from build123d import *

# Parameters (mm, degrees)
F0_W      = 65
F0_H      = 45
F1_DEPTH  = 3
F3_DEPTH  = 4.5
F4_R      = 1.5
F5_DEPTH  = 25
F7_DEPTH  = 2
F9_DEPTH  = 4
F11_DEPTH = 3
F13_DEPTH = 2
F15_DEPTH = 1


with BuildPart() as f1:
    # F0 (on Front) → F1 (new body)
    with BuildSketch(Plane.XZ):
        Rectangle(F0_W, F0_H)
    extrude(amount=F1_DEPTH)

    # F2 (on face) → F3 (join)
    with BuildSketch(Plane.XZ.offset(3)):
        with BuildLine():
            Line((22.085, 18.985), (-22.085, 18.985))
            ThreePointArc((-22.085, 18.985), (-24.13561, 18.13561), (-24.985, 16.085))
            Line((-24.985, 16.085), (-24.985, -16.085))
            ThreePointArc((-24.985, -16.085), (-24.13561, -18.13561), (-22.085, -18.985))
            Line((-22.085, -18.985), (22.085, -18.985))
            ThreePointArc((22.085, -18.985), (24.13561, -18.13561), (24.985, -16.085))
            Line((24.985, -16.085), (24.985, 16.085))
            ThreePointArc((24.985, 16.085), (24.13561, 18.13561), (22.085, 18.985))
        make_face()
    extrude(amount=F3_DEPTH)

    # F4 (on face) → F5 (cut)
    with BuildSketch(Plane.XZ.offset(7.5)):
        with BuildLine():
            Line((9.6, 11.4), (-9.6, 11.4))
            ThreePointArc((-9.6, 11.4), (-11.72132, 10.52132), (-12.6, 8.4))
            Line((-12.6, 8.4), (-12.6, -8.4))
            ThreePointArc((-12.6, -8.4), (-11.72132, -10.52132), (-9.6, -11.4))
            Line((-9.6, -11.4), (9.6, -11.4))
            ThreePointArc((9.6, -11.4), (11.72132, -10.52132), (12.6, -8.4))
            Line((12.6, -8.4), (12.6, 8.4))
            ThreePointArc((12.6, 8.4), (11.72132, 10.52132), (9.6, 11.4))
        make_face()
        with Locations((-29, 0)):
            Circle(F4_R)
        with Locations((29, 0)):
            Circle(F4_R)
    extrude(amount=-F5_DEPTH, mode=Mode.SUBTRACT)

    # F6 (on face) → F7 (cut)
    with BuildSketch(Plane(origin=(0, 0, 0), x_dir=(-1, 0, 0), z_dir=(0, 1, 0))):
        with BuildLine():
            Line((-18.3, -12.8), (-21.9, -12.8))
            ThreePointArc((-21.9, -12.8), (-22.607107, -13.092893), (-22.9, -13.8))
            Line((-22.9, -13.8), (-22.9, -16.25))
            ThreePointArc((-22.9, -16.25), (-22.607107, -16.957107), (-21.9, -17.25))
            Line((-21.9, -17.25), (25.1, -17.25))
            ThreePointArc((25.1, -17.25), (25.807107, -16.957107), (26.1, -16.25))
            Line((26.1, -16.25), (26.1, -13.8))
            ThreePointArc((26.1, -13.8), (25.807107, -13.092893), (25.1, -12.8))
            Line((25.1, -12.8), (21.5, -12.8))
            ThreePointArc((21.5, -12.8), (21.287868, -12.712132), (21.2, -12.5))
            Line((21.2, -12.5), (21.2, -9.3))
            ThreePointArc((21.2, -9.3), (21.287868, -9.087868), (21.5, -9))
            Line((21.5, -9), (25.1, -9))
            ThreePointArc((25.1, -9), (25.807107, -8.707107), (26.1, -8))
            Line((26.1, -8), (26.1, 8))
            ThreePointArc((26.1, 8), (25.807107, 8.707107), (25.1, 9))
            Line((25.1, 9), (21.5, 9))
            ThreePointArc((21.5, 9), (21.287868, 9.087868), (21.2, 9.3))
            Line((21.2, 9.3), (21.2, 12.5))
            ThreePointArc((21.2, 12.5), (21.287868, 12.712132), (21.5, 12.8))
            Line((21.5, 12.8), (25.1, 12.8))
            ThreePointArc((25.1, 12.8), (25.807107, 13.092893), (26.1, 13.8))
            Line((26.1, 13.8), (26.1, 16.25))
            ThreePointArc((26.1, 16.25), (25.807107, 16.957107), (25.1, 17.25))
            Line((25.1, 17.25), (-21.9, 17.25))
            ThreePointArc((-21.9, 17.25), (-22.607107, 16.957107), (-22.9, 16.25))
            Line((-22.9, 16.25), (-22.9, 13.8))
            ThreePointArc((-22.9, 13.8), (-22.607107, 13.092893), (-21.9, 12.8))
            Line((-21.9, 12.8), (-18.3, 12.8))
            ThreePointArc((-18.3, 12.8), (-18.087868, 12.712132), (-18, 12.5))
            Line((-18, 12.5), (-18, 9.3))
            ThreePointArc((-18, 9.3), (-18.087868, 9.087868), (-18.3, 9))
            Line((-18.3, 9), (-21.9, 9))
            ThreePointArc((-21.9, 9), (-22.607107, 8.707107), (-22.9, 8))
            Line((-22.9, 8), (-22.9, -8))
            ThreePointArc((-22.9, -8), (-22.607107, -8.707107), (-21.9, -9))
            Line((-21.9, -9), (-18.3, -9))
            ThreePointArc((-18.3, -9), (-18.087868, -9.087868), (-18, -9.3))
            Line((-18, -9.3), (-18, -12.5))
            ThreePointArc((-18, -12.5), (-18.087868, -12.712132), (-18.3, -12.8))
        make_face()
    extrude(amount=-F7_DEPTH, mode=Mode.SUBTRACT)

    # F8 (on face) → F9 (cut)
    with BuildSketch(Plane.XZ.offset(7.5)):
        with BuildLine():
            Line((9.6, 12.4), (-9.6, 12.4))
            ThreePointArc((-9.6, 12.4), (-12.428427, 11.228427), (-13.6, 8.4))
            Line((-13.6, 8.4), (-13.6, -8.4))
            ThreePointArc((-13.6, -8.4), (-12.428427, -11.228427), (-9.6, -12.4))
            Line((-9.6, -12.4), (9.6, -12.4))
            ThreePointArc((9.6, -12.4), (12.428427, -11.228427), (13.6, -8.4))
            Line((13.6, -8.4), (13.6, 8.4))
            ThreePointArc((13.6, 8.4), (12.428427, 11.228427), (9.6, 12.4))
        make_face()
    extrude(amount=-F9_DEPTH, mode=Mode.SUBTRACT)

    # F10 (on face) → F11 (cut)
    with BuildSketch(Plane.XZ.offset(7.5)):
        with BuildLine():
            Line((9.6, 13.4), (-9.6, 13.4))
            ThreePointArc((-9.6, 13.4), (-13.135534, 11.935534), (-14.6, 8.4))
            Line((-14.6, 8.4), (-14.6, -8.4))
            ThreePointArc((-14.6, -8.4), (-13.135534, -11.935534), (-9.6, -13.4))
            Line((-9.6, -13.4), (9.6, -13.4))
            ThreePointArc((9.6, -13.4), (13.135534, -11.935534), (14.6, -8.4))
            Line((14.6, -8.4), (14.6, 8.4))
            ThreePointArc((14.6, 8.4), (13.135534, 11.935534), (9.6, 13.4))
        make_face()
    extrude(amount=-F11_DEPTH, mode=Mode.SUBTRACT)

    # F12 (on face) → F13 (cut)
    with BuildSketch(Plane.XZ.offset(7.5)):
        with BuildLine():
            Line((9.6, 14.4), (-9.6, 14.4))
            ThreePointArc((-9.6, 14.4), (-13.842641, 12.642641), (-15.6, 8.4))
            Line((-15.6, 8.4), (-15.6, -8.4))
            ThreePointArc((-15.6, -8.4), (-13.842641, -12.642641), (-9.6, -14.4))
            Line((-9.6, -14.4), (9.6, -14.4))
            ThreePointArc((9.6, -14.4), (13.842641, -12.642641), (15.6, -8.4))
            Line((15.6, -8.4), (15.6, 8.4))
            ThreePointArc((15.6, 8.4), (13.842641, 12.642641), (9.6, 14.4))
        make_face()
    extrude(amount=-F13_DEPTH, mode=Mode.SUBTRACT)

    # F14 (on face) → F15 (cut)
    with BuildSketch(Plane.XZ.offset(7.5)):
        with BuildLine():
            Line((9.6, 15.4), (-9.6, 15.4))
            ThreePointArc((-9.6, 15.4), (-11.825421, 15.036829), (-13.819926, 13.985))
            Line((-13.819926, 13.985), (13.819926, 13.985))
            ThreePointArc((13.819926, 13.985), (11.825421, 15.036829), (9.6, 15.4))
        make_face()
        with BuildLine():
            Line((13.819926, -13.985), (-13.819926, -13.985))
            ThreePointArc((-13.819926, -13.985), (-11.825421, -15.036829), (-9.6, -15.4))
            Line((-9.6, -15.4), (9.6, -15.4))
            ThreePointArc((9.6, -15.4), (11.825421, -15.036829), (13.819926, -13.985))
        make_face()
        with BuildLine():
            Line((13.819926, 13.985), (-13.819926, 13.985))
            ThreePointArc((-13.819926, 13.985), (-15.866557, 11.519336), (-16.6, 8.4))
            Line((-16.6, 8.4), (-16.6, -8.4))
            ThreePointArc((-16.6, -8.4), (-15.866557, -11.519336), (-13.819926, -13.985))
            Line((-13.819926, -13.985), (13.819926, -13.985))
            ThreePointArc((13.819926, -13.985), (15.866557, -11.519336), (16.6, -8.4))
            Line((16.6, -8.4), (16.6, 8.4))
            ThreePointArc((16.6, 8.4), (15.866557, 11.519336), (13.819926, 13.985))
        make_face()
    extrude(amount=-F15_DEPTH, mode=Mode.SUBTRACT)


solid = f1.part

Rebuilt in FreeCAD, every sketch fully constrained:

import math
import FreeCAD as App
import Part
import Sketcher
from FreeCAD import Vector
Q = App.Units.Quantity


def add_polygon(sketch, points):
    """Adds a closed chain of lines whose ends are joined by coincident constraints."""
    first, n = sketch.GeometryCount, len(points)
    for a, b in zip(points, points[1:] + points[:1]):
        sketch.addGeometry(Part.LineSegment(App.Vector(*a, 0), App.Vector(*b, 0)), False)
    for i in range(n):
        sketch.addConstraint(Sketcher.Constraint("Coincident", first + i, 2, first + (i + 1) % n, 1))

doc = App.newDocument("Part")
body = doc.addObject("PartDesign::Body", "Body")

# Sketch on XZ plane
sketch1 = body.newObject("Sketcher::SketchObject", "Sketch")
sketch1.AttachmentSupport = (doc.getObject("XZ_Plane"), [""])
sketch1.MapMode = "FlatFace"
add_polygon(sketch1, [(-32, 22), (-32, -22), (32, -22), (32, 22)])  # lines 0-3
sketch1.addConstraint([
    Sketcher.Constraint("Vertical", 0),
    Sketcher.Constraint("Horizontal", 1),
    Sketcher.Constraint("Vertical", 2),
    Sketcher.Constraint("Horizontal", 3),
    Sketcher.Constraint("Symmetric", 0, 2, 2, 2, -1, 1),
    Sketcher.Constraint("DistanceX", 1, 1, 1, 2, Q("65 mm")),
    Sketcher.Constraint("DistanceY", 0, 2, 0, 1, Q("45 mm")),
])
pad1 = body.newObject("PartDesign::Pad", "Pad")
pad1.Profile = sketch1
pad1.Length = 3

# Sketch on XZ plane
sketch2 = body.newObject("Sketcher::SketchObject", "Sketch001")
sketch2.AttachmentSupport = (doc.getObject("XZ_Plane"), [""])
sketch2.MapMode = "FlatFace"
sketch2.AttachmentOffset = App.Placement(Vector(0, 0, 3), App.Rotation())
sketch2.addGeometry([
    Part.LineSegment(Vector(22.1, 19, 0), Vector(-22.1, 19, 0)),  # 0
    Part.ArcOfCircle(Part.Circle(Vector(-22.1, 16.1, 0), Vector(0, 0, 1), 2.9), math.radians(90), math.radians(180)),  # 1
    Part.LineSegment(Vector(-25, 16.1, 0), Vector(-25, -16.1, 0)),  # 2
    Part.ArcOfCircle(Part.Circle(Vector(-22.1, -16.1, 0), Vector(0, 0, 1), 2.9), math.radians(180), math.radians(270)),  # 3
    Part.LineSegment(Vector(-22.1, -19, 0), Vector(22.1, -19, 0)),  # 4
    Part.ArcOfCircle(Part.Circle(Vector(22.1, -16.1, 0), Vector(0, 0, 1), 2.9), math.radians(-90), math.radians(0)),  # 5
    Part.LineSegment(Vector(25, -16.1, 0), Vector(25, 16.1, 0)),  # 6
    Part.ArcOfCircle(Part.Circle(Vector(22.1, 16.1, 0), Vector(0, 0, 1), 2.9), math.radians(0), math.radians(90)),  # 7
], False)
sketch2.addConstraint([
    Sketcher.Constraint("Tangent", 0, 2, 1, 1),
    Sketcher.Constraint("Tangent", 1, 2, 2, 1),
    Sketcher.Constraint("Tangent", 2, 2, 3, 1),
    Sketcher.Constraint("Tangent", 3, 2, 4, 1),
    Sketcher.Constraint("Tangent", 4, 2, 5, 1),
    Sketcher.Constraint("Tangent", 5, 2, 6, 1),
    Sketcher.Constraint("Tangent", 6, 2, 7, 1),
    Sketcher.Constraint("Tangent", 7, 2, 0, 1),
    Sketcher.Constraint("Horizontal", 0),
    Sketcher.Constraint("Vertical", 2),
    Sketcher.Constraint("Horizontal", 4),
    Sketcher.Constraint("Vertical", 6),
    Sketcher.Constraint("Equal", 1, 3),
    Sketcher.Constraint("Equal", 3, 5),
    Sketcher.Constraint("Equal", 5, 7),
    Sketcher.Constraint("Symmetric", 1, 3, 5, 3, -1, 1),
    Sketcher.Constraint("Radius", 1, Q("2.899999 mm")),
    Sketcher.Constraint("DistanceX", 0, 2, 0, 1, Q("44.17 mm")),
    Sketcher.Constraint("DistanceY", 2, 2, 2, 1, Q("32.17 mm")),
])
pad2 = body.newObject("PartDesign::Pad", "Pad001")
pad2.Profile = sketch2
pad2.Length = 4.5

# Sketch on XZ plane
sketch3 = body.newObject("Sketcher::SketchObject", "Sketch002")
sketch3.AttachmentSupport = (doc.getObject("XZ_Plane"), [""])
sketch3.MapMode = "FlatFace"
sketch3.AttachmentOffset = App.Placement(Vector(0, 0, 7.5), App.Rotation())
sketch3.addGeometry([
    Part.LineSegment(Vector(9.6, 11.4, 0), Vector(-9.6, 11.4, 0)),  # 0
    Part.ArcOfCircle(Part.Circle(Vector(-9.6, 8.4, 0), Vector(0, 0, 1), 3), math.radians(90), math.radians(180)),  # 1
    Part.LineSegment(Vector(-12.6, 8.4, 0), Vector(-12.6, -8.4, 0)),  # 2
    Part.ArcOfCircle(Part.Circle(Vector(-9.6, -8.4, 0), Vector(0, 0, 1), 3), math.radians(-180), math.radians(-90)),  # 3
    Part.LineSegment(Vector(-9.6, -11.4, 0), Vector(9.6, -11.4, 0)),  # 4
    Part.ArcOfCircle(Part.Circle(Vector(9.6, -8.4, 0), Vector(0, 0, 1), 3), math.radians(-90), math.radians(0)),  # 5
    Part.LineSegment(Vector(12.6, -8.4, 0), Vector(12.6, 8.4, 0)),  # 6
    Part.ArcOfCircle(Part.Circle(Vector(9.6, 8.4, 0), Vector(0, 0, 1), 3), math.radians(0), math.radians(90)),  # 7
    Part.Circle(Vector(-29, 0, 0), Vector(0, 0, 1), 1.5),  # 8
    Part.Circle(Vector(29, 0, 0), Vector(0, 0, 1), 1.5),  # 9
], False)
sketch3.addConstraint([
    Sketcher.Constraint("Tangent", 0, 2, 1, 1),
    Sketcher.Constraint("Tangent", 1, 2, 2, 1),
    Sketcher.Constraint("Tangent", 2, 2, 3, 1),
    Sketcher.Constraint("Tangent", 3, 2, 4, 1),
    Sketcher.Constraint("Tangent", 4, 2, 5, 1),
    Sketcher.Constraint("Tangent", 5, 2, 6, 1),
    Sketcher.Constraint("Tangent", 6, 2, 7, 1),
    Sketcher.Constraint("Tangent", 7, 2, 0, 1),
    Sketcher.Constraint("Horizontal", 0),
    Sketcher.Constraint("Vertical", 2),
    Sketcher.Constraint("Horizontal", 4),
    Sketcher.Constraint("Vertical", 6),
    Sketcher.Constraint("Equal", 1, 3),
    Sketcher.Constraint("Equal", 3, 5),
    Sketcher.Constraint("Equal", 5, 7),
    Sketcher.Constraint("Equal", 8, 9),
    Sketcher.Constraint("Symmetric", 1, 3, 5, 3, -1, 1),
    Sketcher.Constraint("Symmetric", 8, 3, 9, 3, -1, 1),
    Sketcher.Constraint("PointOnObject", 8, 3, -1),
    Sketcher.Constraint("Diameter", 8, Q("3 mm")),
    Sketcher.Constraint("Radius", 1, Q("3.000001 mm")),
    Sketcher.Constraint("DistanceX", 0, 2, 0, 1, Q("19.2 mm")),
    Sketcher.Constraint("DistanceY", 2, 2, 2, 1, Q("16.8 mm")),
    Sketcher.Constraint("DistanceX", 8, 3, -1, 1, Q("29 mm")),
])
pocket1 = body.newObject("PartDesign::Pocket", "Pocket")
pocket1.Profile = sketch3
pocket1.Length = 25

# Sketch on XZ plane
sketch4 = body.newObject("Sketcher::SketchObject", "Sketch003")
sketch4.AttachmentSupport = (doc.getObject("XZ_Plane"), [""])
sketch4.MapMode = "FlatFace"
sketch4.addGeometry([
    Part.LineSegment(Vector(18.3, -12.8, 0), Vector(21.9, -12.8, 0)),  # 0
    Part.ArcOfCircle(Part.Circle(Vector(21.9, -13.8, 0), Vector(0, 0, 1), 1), math.radians(0), math.radians(90)),  # 1
    Part.LineSegment(Vector(22.9, -13.8, 0), Vector(22.9, -16.25, 0)),  # 2
    Part.ArcOfCircle(Part.Circle(Vector(21.9, -16.25, 0), Vector(0, 0, 1), 1), math.radians(-90), math.radians(0)),  # 3
    Part.LineSegment(Vector(21.9, -17.25, 0), Vector(-25.1, -17.25, 0)),  # 4
    Part.ArcOfCircle(Part.Circle(Vector(-25.1, -16.25, 0), Vector(0, 0, 1), 1), math.radians(180), math.radians(270)),  # 5
    Part.LineSegment(Vector(-26.1, -16.25, 0), Vector(-26.1, -13.8, 0)),  # 6
    Part.ArcOfCircle(Part.Circle(Vector(-25.1, -13.8, 0), Vector(0, 0, 1), 1), math.radians(90), math.radians(180)),  # 7
    Part.LineSegment(Vector(-25.1, -12.8, 0), Vector(-21.5, -12.8, 0)),  # 8
    Part.ArcOfCircle(Part.Circle(Vector(-21.5, -12.5, 0), Vector(0, 0, 1), 0.3), math.radians(-90), math.radians(0)),  # 9
    Part.LineSegment(Vector(-21.2, -12.5, 0), Vector(-21.2, -9.3, 0)),  # 10
    Part.ArcOfCircle(Part.Circle(Vector(-21.5, -9.3, 0), Vector(0, 0, 1), 0.3), math.radians(0), math.radians(90)),  # 11
    Part.LineSegment(Vector(-21.5, -9, 0), Vector(-25.1, -9, 0)),  # 12
    Part.ArcOfCircle(Part.Circle(Vector(-25.1, -8, 0), Vector(0, 0, 1), 1), math.radians(180), math.radians(270)),  # 13
    Part.LineSegment(Vector(-26.1, -8, 0), Vector(-26.1, 8, 0)),  # 14
    Part.ArcOfCircle(Part.Circle(Vector(-25.1, 8, 0), Vector(0, 0, 1), 1), math.radians(90), math.radians(180)),  # 15
    Part.LineSegment(Vector(-25.1, 9, 0), Vector(-21.5, 9, 0)),  # 16
    Part.ArcOfCircle(Part.Circle(Vector(-21.5, 9.3, 0), Vector(0, 0, 1), 0.3), math.radians(-90), math.radians(0)),  # 17
    Part.LineSegment(Vector(-21.2, 9.3, 0), Vector(-21.2, 12.5, 0)),  # 18
    Part.ArcOfCircle(Part.Circle(Vector(-21.5, 12.5, 0), Vector(0, 0, 1), 0.3), math.radians(0), math.radians(90)),  # 19
    Part.LineSegment(Vector(-21.5, 12.8, 0), Vector(-25.1, 12.8, 0)),  # 20
    Part.ArcOfCircle(Part.Circle(Vector(-25.1, 13.8, 0), Vector(0, 0, 1), 1), math.radians(180), math.radians(270)),  # 21
    Part.LineSegment(Vector(-26.1, 13.8, 0), Vector(-26.1, 16.25, 0)),  # 22
    Part.ArcOfCircle(Part.Circle(Vector(-25.1, 16.25, 0), Vector(0, 0, 1), 1), math.radians(90), math.radians(180)),  # 23
    Part.LineSegment(Vector(-25.1, 17.25, 0), Vector(21.9, 17.25, 0)),  # 24
    Part.ArcOfCircle(Part.Circle(Vector(21.9, 16.25, 0), Vector(0, 0, 1), 1), math.radians(0), math.radians(90)),  # 25
    Part.LineSegment(Vector(22.9, 16.25, 0), Vector(22.9, 13.8, 0)),  # 26
    Part.ArcOfCircle(Part.Circle(Vector(21.9, 13.8, 0), Vector(0, 0, 1), 1), math.radians(-90), math.radians(0)),  # 27
    Part.LineSegment(Vector(21.9, 12.8, 0), Vector(18.3, 12.8, 0)),  # 28
    Part.ArcOfCircle(Part.Circle(Vector(18.3, 12.5, 0), Vector(0, 0, 1), 0.3), math.radians(90), math.radians(180)),  # 29
    Part.LineSegment(Vector(18, 12.5, 0), Vector(18, 9.3, 0)),  # 30
    Part.ArcOfCircle(Part.Circle(Vector(18.3, 9.3, 0), Vector(0, 0, 1), 0.3), math.radians(-180), math.radians(-90)),  # 31
    Part.LineSegment(Vector(18.3, 9, 0), Vector(21.9, 9, 0)),  # 32
    Part.ArcOfCircle(Part.Circle(Vector(21.9, 8, 0), Vector(0, 0, 1), 1), math.radians(0), math.radians(90)),  # 33
    Part.LineSegment(Vector(22.9, 8, 0), Vector(22.9, -8, 0)),  # 34
    Part.ArcOfCircle(Part.Circle(Vector(21.9, -8, 0), Vector(0, 0, 1), 1), math.radians(-90), math.radians(0)),  # 35
    Part.LineSegment(Vector(21.9, -9, 0), Vector(18.3, -9, 0)),  # 36
    Part.ArcOfCircle(Part.Circle(Vector(18.3, -9.3, 0), Vector(0, 0, 1), 0.3), math.radians(90), math.radians(180)),  # 37
    Part.LineSegment(Vector(18, -9.3, 0), Vector(18, -12.5, 0)),  # 38
    Part.ArcOfCircle(Part.Circle(Vector(18.3, -12.5, 0), Vector(0, 0, 1), 0.3), math.radians(-180), math.radians(-90)),  # 39
], False)
sketch4.addConstraint([
    Sketcher.Constraint("Tangent", 0, 2, 1, 2),
    Sketcher.Constraint("Tangent", 1, 1, 2, 1),
    Sketcher.Constraint("Tangent", 2, 2, 3, 2),
    Sketcher.Constraint("Tangent", 3, 1, 4, 1),
    Sketcher.Constraint("Tangent", 4, 2, 5, 2),
    Sketcher.Constraint("Tangent", 5, 1, 6, 1),
    Sketcher.Constraint("Tangent", 6, 2, 7, 2),
    Sketcher.Constraint("Tangent", 7, 1, 8, 1),
    Sketcher.Constraint("Tangent", 8, 2, 9, 1),
    Sketcher.Constraint("Tangent", 9, 2, 10, 1),
    Sketcher.Constraint("Tangent", 10, 2, 11, 1),
    Sketcher.Constraint("Tangent", 11, 2, 12, 1),
    Sketcher.Constraint("Tangent", 12, 2, 13, 2),
    Sketcher.Constraint("Tangent", 13, 1, 14, 1),
    Sketcher.Constraint("Tangent", 14, 2, 15, 2),
    Sketcher.Constraint("Tangent", 15, 1, 16, 1),
    Sketcher.Constraint("Tangent", 16, 2, 17, 1),
    Sketcher.Constraint("Tangent", 17, 2, 18, 1),
    Sketcher.Constraint("Tangent", 18, 2, 19, 1),
    Sketcher.Constraint("Tangent", 19, 2, 20, 1),
    Sketcher.Constraint("Tangent", 20, 2, 21, 2),
    Sketcher.Constraint("Tangent", 21, 1, 22, 1),
    Sketcher.Constraint("Tangent", 22, 2, 23, 2),
    Sketcher.Constraint("Tangent", 23, 1, 24, 1),
    Sketcher.Constraint("Tangent", 24, 2, 25, 2),
    Sketcher.Constraint("Tangent", 25, 1, 26, 1),
    Sketcher.Constraint("Tangent", 26, 2, 27, 2),
    Sketcher.Constraint("Tangent", 27, 1, 28, 1),
    Sketcher.Constraint("Tangent", 28, 2, 29, 1),
    Sketcher.Constraint("Tangent", 29, 2, 30, 1),
    Sketcher.Constraint("Tangent", 30, 2, 31, 1),
    Sketcher.Constraint("Tangent", 31, 2, 32, 1),
    Sketcher.Constraint("Tangent", 32, 2, 33, 2),
    Sketcher.Constraint("Tangent", 33, 1, 34, 1),
    Sketcher.Constraint("Tangent", 34, 2, 35, 2),
    Sketcher.Constraint("Tangent", 35, 1, 36, 1),
    Sketcher.Constraint("Tangent", 36, 2, 37, 1),
    Sketcher.Constraint("Tangent", 37, 2, 38, 1),
    Sketcher.Constraint("Tangent", 38, 2, 39, 1),
    Sketcher.Constraint("Tangent", 39, 2, 0, 1),
    Sketcher.Constraint("Horizontal", 0),
    Sketcher.Constraint("Vertical", 2),
    Sketcher.Constraint("Horizontal", 4),
    Sketcher.Constraint("Vertical", 6),
    Sketcher.Constraint("Horizontal", 8),
    Sketcher.Constraint("Vertical", 10),
    Sketcher.Constraint("Horizontal", 12),
    Sketcher.Constraint("Vertical", 14),
    Sketcher.Constraint("Horizontal", 16),
    Sketcher.Constraint("Vertical", 18),
    Sketcher.Constraint("Horizontal", 20),
    Sketcher.Constraint("Vertical", 22),
    Sketcher.Constraint("Horizontal", 24),
    Sketcher.Constraint("Vertical", 26),
    Sketcher.Constraint("Horizontal", 28),
    Sketcher.Constraint("Vertical", 30),
    Sketcher.Constraint("Horizontal", 32),
    Sketcher.Constraint("Vertical", 34),
    Sketcher.Constraint("Horizontal", 36),
    Sketcher.Constraint("Vertical", 38),
    Sketcher.Constraint("Equal", 1, 3),
    Sketcher.Constraint("Equal", 3, 5),
    Sketcher.Constraint("Equal", 5, 7),
    Sketcher.Constraint("Equal", 9, 11),
    Sketcher.Constraint("Equal", 7, 13),
    Sketcher.Constraint("Equal", 13, 15),
    Sketcher.Constraint("Equal", 11, 17),
    Sketcher.Constraint("Equal", 17, 19),
    Sketcher.Constraint("Equal", 15, 21),
    Sketcher.Constraint("Equal", 21, 23),
    Sketcher.Constraint("Equal", 23, 25),
    Sketcher.Constraint("Equal", 25, 27),
    Sketcher.Constraint("Equal", 19, 29),
    Sketcher.Constraint("Equal", 29, 31),
    Sketcher.Constraint("Equal", 27, 33),
    Sketcher.Constraint("Equal", 33, 35),
    Sketcher.Constraint("Equal", 31, 37),
    Sketcher.Constraint("Equal", 37, 39),
    Sketcher.Constraint("Symmetric", 11, 3, 17, 3, -1),
    Sketcher.Constraint("Symmetric", 7, 3, 21, 3, -1),
    Sketcher.Constraint("Symmetric", 3, 3, 25, 3, -1),
    Sketcher.Constraint("Symmetric", 31, 3, 37, 3, -1),
    Sketcher.Constraint("Horizontal", 1, 3, 7, 3),
    Sketcher.Constraint("Horizontal", 21, 3, 27, 3),
    Sketcher.Constraint("Horizontal", 17, 3, 31, 3),
    Sketcher.Constraint("Vertical", 7, 3, 13, 3),
    Sketcher.Constraint("Vertical", 27, 3, 33, 3),
    Sketcher.Constraint("Equal", 0, 8),
    Sketcher.Constraint("Radius", 1, Q("0.999999 mm")),
    Sketcher.Constraint("Radius", 9, Q("0.3 mm")),
    Sketcher.Constraint("DistanceX", 4, 2, 4, 1, Q("47 mm")),
    Sketcher.Constraint("DistanceY", 14, 1, 14, 2, Q("16 mm")),
    Sketcher.Constraint("DistanceX", 0, 1, 0, 2, Q("3.6 mm")),
    Sketcher.Constraint("DistanceY", 10, 1, 10, 2, Q("3.2 mm")),
    Sketcher.Constraint("DistanceX", -1, 1, 29, 2, Q("18 mm")),
    Sketcher.Constraint("DistanceY", 2, 2, 2, 1, Q("2.45 mm")),
])
pocket2 = body.newObject("PartDesign::Pocket", "Pocket001")
pocket2.Profile = sketch4
pocket2.Length = 2
pocket2.Reversed = True

# Sketch on XZ plane
sketch5 = body.newObject("Sketcher::SketchObject", "Sketch004")
sketch5.AttachmentSupport = (doc.getObject("XZ_Plane"), [""])
sketch5.MapMode = "FlatFace"
sketch5.AttachmentOffset = App.Placement(Vector(0, 0, 7.5), App.Rotation())
sketch5.addGeometry([
    Part.LineSegment(Vector(9.6, 12.4, 0), Vector(-9.6, 12.4, 0)),  # 0
    Part.ArcOfCircle(Part.Circle(Vector(-9.6, 8.4, 0), Vector(0, 0, 1), 4), math.radians(90), math.radians(180)),  # 1
    Part.LineSegment(Vector(-13.6, 8.4, 0), Vector(-13.6, -8.4, 0)),  # 2
    Part.ArcOfCircle(Part.Circle(Vector(-9.6, -8.4, 0), Vector(0, 0, 1), 4), math.radians(-180), math.radians(-90)),  # 3
    Part.LineSegment(Vector(-9.6, -12.4, 0), Vector(9.6, -12.4, 0)),  # 4
    Part.ArcOfCircle(Part.Circle(Vector(9.6, -8.4, 0), Vector(0, 0, 1), 4), math.radians(-90), math.radians(0)),  # 5
    Part.LineSegment(Vector(13.6, -8.4, 0), Vector(13.6, 8.4, 0)),  # 6
    Part.ArcOfCircle(Part.Circle(Vector(9.6, 8.4, 0), Vector(0, 0, 1), 4), math.radians(0), math.radians(90)),  # 7
], False)
sketch5.addConstraint([
    Sketcher.Constraint("Tangent", 0, 2, 1, 1),
    Sketcher.Constraint("Tangent", 1, 2, 2, 1),
    Sketcher.Constraint("Tangent", 2, 2, 3, 1),
    Sketcher.Constraint("Tangent", 3, 2, 4, 1),
    Sketcher.Constraint("Tangent", 4, 2, 5, 1),
    Sketcher.Constraint("Tangent", 5, 2, 6, 1),
    Sketcher.Constraint("Tangent", 6, 2, 7, 1),
    Sketcher.Constraint("Tangent", 7, 2, 0, 1),
    Sketcher.Constraint("Horizontal", 0),
    Sketcher.Constraint("Vertical", 2),
    Sketcher.Constraint("Horizontal", 4),
    Sketcher.Constraint("Vertical", 6),
    Sketcher.Constraint("Equal", 1, 3),
    Sketcher.Constraint("Equal", 3, 5),
    Sketcher.Constraint("Equal", 5, 7),
    Sketcher.Constraint("Symmetric", 1, 3, 5, 3, -1, 1),
    Sketcher.Constraint("Radius", 1, Q("4 mm")),
    Sketcher.Constraint("DistanceX", 0, 2, 0, 1, Q("19.2 mm")),
    Sketcher.Constraint("DistanceY", 2, 2, 2, 1, Q("16.8 mm")),
])
pocket3 = body.newObject("PartDesign::Pocket", "Pocket002")
pocket3.Profile = sketch5
pocket3.Length = 4

# Sketch on XZ plane
sketch6 = body.newObject("Sketcher::SketchObject", "Sketch005")
sketch6.AttachmentSupport = (doc.getObject("XZ_Plane"), [""])
sketch6.MapMode = "FlatFace"
sketch6.AttachmentOffset = App.Placement(Vector(0, 0, 7.5), App.Rotation())
sketch6.addGeometry([
    Part.LineSegment(Vector(9.6, 13.4, 0), Vector(-9.6, 13.4, 0)),  # 0
    Part.ArcOfCircle(Part.Circle(Vector(-9.6, 8.4, 0), Vector(0, 0, 1), 5), math.radians(90), math.radians(180)),  # 1
    Part.LineSegment(Vector(-14.6, 8.4, 0), Vector(-14.6, -8.4, 0)),  # 2
    Part.ArcOfCircle(Part.Circle(Vector(-9.6, -8.4, 0), Vector(0, 0, 1), 5), math.radians(180), math.radians(270)),  # 3
    Part.LineSegment(Vector(-9.6, -13.4, 0), Vector(9.6, -13.4, 0)),  # 4
    Part.ArcOfCircle(Part.Circle(Vector(9.6, -8.4, 0), Vector(0, 0, 1), 5), math.radians(-90), math.radians(0)),  # 5
    Part.LineSegment(Vector(14.6, -8.4, 0), Vector(14.6, 8.4, 0)),  # 6
    Part.ArcOfCircle(Part.Circle(Vector(9.6, 8.4, 0), Vector(0, 0, 1), 5), math.radians(0), math.radians(90)),  # 7
], False)
sketch6.addConstraint([
    Sketcher.Constraint("Tangent", 0, 2, 1, 1),
    Sketcher.Constraint("Tangent", 1, 2, 2, 1),
    Sketcher.Constraint("Tangent", 2, 2, 3, 1),
    Sketcher.Constraint("Tangent", 3, 2, 4, 1),
    Sketcher.Constraint("Tangent", 4, 2, 5, 1),
    Sketcher.Constraint("Tangent", 5, 2, 6, 1),
    Sketcher.Constraint("Tangent", 6, 2, 7, 1),
    Sketcher.Constraint("Tangent", 7, 2, 0, 1),
    Sketcher.Constraint("Horizontal", 0),
    Sketcher.Constraint("Vertical", 2),
    Sketcher.Constraint("Horizontal", 4),
    Sketcher.Constraint("Vertical", 6),
    Sketcher.Constraint("Equal", 1, 3),
    Sketcher.Constraint("Equal", 3, 5),
    Sketcher.Constraint("Equal", 5, 7),
    Sketcher.Constraint("Symmetric", 1, 3, 5, 3, -1, 1),
    Sketcher.Constraint("Radius", 1, Q("5 mm")),
    Sketcher.Constraint("DistanceX", 0, 2, 0, 1, Q("19.2 mm")),
    Sketcher.Constraint("DistanceY", 2, 2, 2, 1, Q("16.8 mm")),
])
pocket4 = body.newObject("PartDesign::Pocket", "Pocket003")
pocket4.Profile = sketch6
pocket4.Length = 3

# Sketch on XZ plane
sketch7 = body.newObject("Sketcher::SketchObject", "Sketch006")
sketch7.AttachmentSupport = (doc.getObject("XZ_Plane"), [""])
sketch7.MapMode = "FlatFace"
sketch7.AttachmentOffset = App.Placement(Vector(0, 0, 7.5), App.Rotation())
sketch7.addGeometry([
    Part.LineSegment(Vector(10, 14, 0), Vector(-10, 14, 0)),  # 0
    Part.ArcOfCircle(Part.Circle(Vector(-10, 8, 0), Vector(0, 0, 1), 6), math.radians(90), math.radians(180)),  # 1
    Part.LineSegment(Vector(-16, 8, 0), Vector(-16, -8, 0)),  # 2
    Part.ArcOfCircle(Part.Circle(Vector(-10, -8, 0), Vector(0, 0, 1), 6), math.radians(180), math.radians(270)),  # 3
    Part.LineSegment(Vector(-10, -14, 0), Vector(10, -14, 0)),  # 4
    Part.ArcOfCircle(Part.Circle(Vector(10, -8, 0), Vector(0, 0, 1), 6), math.radians(-90), math.radians(0)),  # 5
    Part.LineSegment(Vector(16, -8, 0), Vector(16, 8, 0)),  # 6
    Part.ArcOfCircle(Part.Circle(Vector(10, 8, 0), Vector(0, 0, 1), 6), math.radians(0), math.radians(90)),  # 7
], False)
sketch7.addConstraint([
    Sketcher.Constraint("Tangent", 0, 2, 1, 1),
    Sketcher.Constraint("Tangent", 1, 2, 2, 1),
    Sketcher.Constraint("Tangent", 2, 2, 3, 1),
    Sketcher.Constraint("Tangent", 3, 2, 4, 1),
    Sketcher.Constraint("Tangent", 4, 2, 5, 1),
    Sketcher.Constraint("Tangent", 5, 2, 6, 1),
    Sketcher.Constraint("Tangent", 6, 2, 7, 1),
    Sketcher.Constraint("Tangent", 7, 2, 0, 1),
    Sketcher.Constraint("Horizontal", 0),
    Sketcher.Constraint("Vertical", 2),
    Sketcher.Constraint("Horizontal", 4),
    Sketcher.Constraint("Vertical", 6),
    Sketcher.Constraint("Equal", 1, 3),
    Sketcher.Constraint("Equal", 3, 5),
    Sketcher.Constraint("Equal", 5, 7),
    Sketcher.Constraint("Symmetric", 1, 3, 5, 3, -1, 1),
    Sketcher.Constraint("Radius", 1, Q("5.999999 mm")),
    Sketcher.Constraint("DistanceX", 0, 2, 0, 1, Q("19.2 mm")),
    Sketcher.Constraint("DistanceY", 2, 2, 2, 1, Q("16.8 mm")),
])
pocket5 = body.newObject("PartDesign::Pocket", "Pocket004")
pocket5.Profile = sketch7
pocket5.Length = 2

# Sketch on XZ plane
sketch8 = body.newObject("Sketcher::SketchObject", "Sketch007")
sketch8.AttachmentSupport = (doc.getObject("XZ_Plane"), [""])
sketch8.MapMode = "FlatFace"
sketch8.AttachmentOffset = App.Placement(Vector(0, 0, 7.5), App.Rotation())
sketch8.addGeometry([
    Part.LineSegment(Vector(16.6, -8.4, 0), Vector(16.6, 8.4, 0)),  # 0
    Part.ArcOfCircle(Part.Circle(Vector(9.6, 8.4, 0), Vector(0, 0, 1), 7), math.radians(0), math.radians(53)),  # 1
    Part.ArcOfCircle(Part.Circle(Vector(9.6, 8.4, 0), Vector(0, 0, 1), 7), math.radians(53), math.radians(90)),  # 2
    Part.LineSegment(Vector(9.6, 15.4, 0), Vector(-9.6, 15.4, 0)),  # 3
    Part.ArcOfCircle(Part.Circle(Vector(-9.6, 8.4, 0), Vector(0, 0, 1), 7), math.radians(90), math.radians(127)),  # 4
    Part.ArcOfCircle(Part.Circle(Vector(-9.6, 8.4, 0), Vector(0, 0, 1), 7), math.radians(127), math.radians(180)),  # 5
    Part.LineSegment(Vector(-16.6, 8.4, 0), Vector(-16.6, -8.4, 0)),  # 6
    Part.ArcOfCircle(Part.Circle(Vector(-9.6, -8.4, 0), Vector(0, 0, 1), 7), math.radians(-180), math.radians(-127)),  # 7
    Part.ArcOfCircle(Part.Circle(Vector(-9.6, -8.4, 0), Vector(0, 0, 1), 7), math.radians(-127), math.radians(-90)),  # 8
    Part.LineSegment(Vector(-9.6, -15.4, 0), Vector(9.6, -15.4, 0)),  # 9
    Part.ArcOfCircle(Part.Circle(Vector(9.6, -8.4, 0), Vector(0, 0, 1), 7), math.radians(-90), math.radians(-53)),  # 10
    Part.ArcOfCircle(Part.Circle(Vector(9.6, -8.4, 0), Vector(0, 0, 1), 7), math.radians(-53), math.radians(0)),  # 11
], False)
sketch8.addConstraint([
    Sketcher.Constraint("Tangent", 0, 2, 1, 1),
    Sketcher.Constraint("Tangent", 1, 2, 2, 1),
    Sketcher.Constraint("Tangent", 2, 2, 3, 1),
    Sketcher.Constraint("Tangent", 3, 2, 4, 1),
    Sketcher.Constraint("Tangent", 4, 2, 5, 1),
    Sketcher.Constraint("Tangent", 5, 2, 6, 1),
    Sketcher.Constraint("Tangent", 6, 2, 7, 1),
    Sketcher.Constraint("Tangent", 7, 2, 8, 1),
    Sketcher.Constraint("Tangent", 8, 2, 9, 1),
    Sketcher.Constraint("Tangent", 9, 2, 10, 1),
    Sketcher.Constraint("Tangent", 10, 2, 11, 1),
    Sketcher.Constraint("Tangent", 11, 2, 0, 1),
    Sketcher.Constraint("Vertical", 0),
    Sketcher.Constraint("Horizontal", 3),
    Sketcher.Constraint("Vertical", 6),
    Sketcher.Constraint("Horizontal", 9),
    Sketcher.Constraint("Equal", 1, 2),
    Sketcher.Constraint("Equal", 2, 4),
    Sketcher.Constraint("Equal", 4, 5),
    Sketcher.Constraint("Equal", 5, 7),
    Sketcher.Constraint("Equal", 7, 8),
    Sketcher.Constraint("Equal", 8, 10),
    Sketcher.Constraint("Equal", 10, 11),
    Sketcher.Constraint("Symmetric", 1, 3, 7, 3, -1, 1),
    Sketcher.Constraint("Horizontal", 1, 2, 4, 2),
    Sketcher.Constraint("Horizontal", 7, 2, 10, 2),
    Sketcher.Constraint("Vertical", 4, 2, 7, 2),
    Sketcher.Constraint("DistanceX", 3, 2, 3, 1, Q("19.2 mm")),
    Sketcher.Constraint("DistanceY", 0, 1, 0, 2, Q("16.8 mm")),
    Sketcher.Constraint("DistanceX", 2, 3, 0, 2, Q("7.000001 mm")),
    Sketcher.Constraint("DistanceY", -1, 1, 1, 2, Q("13.985 mm")),
])
pocket6 = body.newObject("PartDesign::Pocket", "Pocket005")
pocket6.Profile = sketch8
pocket6.Length = 1

doc.recompute()
